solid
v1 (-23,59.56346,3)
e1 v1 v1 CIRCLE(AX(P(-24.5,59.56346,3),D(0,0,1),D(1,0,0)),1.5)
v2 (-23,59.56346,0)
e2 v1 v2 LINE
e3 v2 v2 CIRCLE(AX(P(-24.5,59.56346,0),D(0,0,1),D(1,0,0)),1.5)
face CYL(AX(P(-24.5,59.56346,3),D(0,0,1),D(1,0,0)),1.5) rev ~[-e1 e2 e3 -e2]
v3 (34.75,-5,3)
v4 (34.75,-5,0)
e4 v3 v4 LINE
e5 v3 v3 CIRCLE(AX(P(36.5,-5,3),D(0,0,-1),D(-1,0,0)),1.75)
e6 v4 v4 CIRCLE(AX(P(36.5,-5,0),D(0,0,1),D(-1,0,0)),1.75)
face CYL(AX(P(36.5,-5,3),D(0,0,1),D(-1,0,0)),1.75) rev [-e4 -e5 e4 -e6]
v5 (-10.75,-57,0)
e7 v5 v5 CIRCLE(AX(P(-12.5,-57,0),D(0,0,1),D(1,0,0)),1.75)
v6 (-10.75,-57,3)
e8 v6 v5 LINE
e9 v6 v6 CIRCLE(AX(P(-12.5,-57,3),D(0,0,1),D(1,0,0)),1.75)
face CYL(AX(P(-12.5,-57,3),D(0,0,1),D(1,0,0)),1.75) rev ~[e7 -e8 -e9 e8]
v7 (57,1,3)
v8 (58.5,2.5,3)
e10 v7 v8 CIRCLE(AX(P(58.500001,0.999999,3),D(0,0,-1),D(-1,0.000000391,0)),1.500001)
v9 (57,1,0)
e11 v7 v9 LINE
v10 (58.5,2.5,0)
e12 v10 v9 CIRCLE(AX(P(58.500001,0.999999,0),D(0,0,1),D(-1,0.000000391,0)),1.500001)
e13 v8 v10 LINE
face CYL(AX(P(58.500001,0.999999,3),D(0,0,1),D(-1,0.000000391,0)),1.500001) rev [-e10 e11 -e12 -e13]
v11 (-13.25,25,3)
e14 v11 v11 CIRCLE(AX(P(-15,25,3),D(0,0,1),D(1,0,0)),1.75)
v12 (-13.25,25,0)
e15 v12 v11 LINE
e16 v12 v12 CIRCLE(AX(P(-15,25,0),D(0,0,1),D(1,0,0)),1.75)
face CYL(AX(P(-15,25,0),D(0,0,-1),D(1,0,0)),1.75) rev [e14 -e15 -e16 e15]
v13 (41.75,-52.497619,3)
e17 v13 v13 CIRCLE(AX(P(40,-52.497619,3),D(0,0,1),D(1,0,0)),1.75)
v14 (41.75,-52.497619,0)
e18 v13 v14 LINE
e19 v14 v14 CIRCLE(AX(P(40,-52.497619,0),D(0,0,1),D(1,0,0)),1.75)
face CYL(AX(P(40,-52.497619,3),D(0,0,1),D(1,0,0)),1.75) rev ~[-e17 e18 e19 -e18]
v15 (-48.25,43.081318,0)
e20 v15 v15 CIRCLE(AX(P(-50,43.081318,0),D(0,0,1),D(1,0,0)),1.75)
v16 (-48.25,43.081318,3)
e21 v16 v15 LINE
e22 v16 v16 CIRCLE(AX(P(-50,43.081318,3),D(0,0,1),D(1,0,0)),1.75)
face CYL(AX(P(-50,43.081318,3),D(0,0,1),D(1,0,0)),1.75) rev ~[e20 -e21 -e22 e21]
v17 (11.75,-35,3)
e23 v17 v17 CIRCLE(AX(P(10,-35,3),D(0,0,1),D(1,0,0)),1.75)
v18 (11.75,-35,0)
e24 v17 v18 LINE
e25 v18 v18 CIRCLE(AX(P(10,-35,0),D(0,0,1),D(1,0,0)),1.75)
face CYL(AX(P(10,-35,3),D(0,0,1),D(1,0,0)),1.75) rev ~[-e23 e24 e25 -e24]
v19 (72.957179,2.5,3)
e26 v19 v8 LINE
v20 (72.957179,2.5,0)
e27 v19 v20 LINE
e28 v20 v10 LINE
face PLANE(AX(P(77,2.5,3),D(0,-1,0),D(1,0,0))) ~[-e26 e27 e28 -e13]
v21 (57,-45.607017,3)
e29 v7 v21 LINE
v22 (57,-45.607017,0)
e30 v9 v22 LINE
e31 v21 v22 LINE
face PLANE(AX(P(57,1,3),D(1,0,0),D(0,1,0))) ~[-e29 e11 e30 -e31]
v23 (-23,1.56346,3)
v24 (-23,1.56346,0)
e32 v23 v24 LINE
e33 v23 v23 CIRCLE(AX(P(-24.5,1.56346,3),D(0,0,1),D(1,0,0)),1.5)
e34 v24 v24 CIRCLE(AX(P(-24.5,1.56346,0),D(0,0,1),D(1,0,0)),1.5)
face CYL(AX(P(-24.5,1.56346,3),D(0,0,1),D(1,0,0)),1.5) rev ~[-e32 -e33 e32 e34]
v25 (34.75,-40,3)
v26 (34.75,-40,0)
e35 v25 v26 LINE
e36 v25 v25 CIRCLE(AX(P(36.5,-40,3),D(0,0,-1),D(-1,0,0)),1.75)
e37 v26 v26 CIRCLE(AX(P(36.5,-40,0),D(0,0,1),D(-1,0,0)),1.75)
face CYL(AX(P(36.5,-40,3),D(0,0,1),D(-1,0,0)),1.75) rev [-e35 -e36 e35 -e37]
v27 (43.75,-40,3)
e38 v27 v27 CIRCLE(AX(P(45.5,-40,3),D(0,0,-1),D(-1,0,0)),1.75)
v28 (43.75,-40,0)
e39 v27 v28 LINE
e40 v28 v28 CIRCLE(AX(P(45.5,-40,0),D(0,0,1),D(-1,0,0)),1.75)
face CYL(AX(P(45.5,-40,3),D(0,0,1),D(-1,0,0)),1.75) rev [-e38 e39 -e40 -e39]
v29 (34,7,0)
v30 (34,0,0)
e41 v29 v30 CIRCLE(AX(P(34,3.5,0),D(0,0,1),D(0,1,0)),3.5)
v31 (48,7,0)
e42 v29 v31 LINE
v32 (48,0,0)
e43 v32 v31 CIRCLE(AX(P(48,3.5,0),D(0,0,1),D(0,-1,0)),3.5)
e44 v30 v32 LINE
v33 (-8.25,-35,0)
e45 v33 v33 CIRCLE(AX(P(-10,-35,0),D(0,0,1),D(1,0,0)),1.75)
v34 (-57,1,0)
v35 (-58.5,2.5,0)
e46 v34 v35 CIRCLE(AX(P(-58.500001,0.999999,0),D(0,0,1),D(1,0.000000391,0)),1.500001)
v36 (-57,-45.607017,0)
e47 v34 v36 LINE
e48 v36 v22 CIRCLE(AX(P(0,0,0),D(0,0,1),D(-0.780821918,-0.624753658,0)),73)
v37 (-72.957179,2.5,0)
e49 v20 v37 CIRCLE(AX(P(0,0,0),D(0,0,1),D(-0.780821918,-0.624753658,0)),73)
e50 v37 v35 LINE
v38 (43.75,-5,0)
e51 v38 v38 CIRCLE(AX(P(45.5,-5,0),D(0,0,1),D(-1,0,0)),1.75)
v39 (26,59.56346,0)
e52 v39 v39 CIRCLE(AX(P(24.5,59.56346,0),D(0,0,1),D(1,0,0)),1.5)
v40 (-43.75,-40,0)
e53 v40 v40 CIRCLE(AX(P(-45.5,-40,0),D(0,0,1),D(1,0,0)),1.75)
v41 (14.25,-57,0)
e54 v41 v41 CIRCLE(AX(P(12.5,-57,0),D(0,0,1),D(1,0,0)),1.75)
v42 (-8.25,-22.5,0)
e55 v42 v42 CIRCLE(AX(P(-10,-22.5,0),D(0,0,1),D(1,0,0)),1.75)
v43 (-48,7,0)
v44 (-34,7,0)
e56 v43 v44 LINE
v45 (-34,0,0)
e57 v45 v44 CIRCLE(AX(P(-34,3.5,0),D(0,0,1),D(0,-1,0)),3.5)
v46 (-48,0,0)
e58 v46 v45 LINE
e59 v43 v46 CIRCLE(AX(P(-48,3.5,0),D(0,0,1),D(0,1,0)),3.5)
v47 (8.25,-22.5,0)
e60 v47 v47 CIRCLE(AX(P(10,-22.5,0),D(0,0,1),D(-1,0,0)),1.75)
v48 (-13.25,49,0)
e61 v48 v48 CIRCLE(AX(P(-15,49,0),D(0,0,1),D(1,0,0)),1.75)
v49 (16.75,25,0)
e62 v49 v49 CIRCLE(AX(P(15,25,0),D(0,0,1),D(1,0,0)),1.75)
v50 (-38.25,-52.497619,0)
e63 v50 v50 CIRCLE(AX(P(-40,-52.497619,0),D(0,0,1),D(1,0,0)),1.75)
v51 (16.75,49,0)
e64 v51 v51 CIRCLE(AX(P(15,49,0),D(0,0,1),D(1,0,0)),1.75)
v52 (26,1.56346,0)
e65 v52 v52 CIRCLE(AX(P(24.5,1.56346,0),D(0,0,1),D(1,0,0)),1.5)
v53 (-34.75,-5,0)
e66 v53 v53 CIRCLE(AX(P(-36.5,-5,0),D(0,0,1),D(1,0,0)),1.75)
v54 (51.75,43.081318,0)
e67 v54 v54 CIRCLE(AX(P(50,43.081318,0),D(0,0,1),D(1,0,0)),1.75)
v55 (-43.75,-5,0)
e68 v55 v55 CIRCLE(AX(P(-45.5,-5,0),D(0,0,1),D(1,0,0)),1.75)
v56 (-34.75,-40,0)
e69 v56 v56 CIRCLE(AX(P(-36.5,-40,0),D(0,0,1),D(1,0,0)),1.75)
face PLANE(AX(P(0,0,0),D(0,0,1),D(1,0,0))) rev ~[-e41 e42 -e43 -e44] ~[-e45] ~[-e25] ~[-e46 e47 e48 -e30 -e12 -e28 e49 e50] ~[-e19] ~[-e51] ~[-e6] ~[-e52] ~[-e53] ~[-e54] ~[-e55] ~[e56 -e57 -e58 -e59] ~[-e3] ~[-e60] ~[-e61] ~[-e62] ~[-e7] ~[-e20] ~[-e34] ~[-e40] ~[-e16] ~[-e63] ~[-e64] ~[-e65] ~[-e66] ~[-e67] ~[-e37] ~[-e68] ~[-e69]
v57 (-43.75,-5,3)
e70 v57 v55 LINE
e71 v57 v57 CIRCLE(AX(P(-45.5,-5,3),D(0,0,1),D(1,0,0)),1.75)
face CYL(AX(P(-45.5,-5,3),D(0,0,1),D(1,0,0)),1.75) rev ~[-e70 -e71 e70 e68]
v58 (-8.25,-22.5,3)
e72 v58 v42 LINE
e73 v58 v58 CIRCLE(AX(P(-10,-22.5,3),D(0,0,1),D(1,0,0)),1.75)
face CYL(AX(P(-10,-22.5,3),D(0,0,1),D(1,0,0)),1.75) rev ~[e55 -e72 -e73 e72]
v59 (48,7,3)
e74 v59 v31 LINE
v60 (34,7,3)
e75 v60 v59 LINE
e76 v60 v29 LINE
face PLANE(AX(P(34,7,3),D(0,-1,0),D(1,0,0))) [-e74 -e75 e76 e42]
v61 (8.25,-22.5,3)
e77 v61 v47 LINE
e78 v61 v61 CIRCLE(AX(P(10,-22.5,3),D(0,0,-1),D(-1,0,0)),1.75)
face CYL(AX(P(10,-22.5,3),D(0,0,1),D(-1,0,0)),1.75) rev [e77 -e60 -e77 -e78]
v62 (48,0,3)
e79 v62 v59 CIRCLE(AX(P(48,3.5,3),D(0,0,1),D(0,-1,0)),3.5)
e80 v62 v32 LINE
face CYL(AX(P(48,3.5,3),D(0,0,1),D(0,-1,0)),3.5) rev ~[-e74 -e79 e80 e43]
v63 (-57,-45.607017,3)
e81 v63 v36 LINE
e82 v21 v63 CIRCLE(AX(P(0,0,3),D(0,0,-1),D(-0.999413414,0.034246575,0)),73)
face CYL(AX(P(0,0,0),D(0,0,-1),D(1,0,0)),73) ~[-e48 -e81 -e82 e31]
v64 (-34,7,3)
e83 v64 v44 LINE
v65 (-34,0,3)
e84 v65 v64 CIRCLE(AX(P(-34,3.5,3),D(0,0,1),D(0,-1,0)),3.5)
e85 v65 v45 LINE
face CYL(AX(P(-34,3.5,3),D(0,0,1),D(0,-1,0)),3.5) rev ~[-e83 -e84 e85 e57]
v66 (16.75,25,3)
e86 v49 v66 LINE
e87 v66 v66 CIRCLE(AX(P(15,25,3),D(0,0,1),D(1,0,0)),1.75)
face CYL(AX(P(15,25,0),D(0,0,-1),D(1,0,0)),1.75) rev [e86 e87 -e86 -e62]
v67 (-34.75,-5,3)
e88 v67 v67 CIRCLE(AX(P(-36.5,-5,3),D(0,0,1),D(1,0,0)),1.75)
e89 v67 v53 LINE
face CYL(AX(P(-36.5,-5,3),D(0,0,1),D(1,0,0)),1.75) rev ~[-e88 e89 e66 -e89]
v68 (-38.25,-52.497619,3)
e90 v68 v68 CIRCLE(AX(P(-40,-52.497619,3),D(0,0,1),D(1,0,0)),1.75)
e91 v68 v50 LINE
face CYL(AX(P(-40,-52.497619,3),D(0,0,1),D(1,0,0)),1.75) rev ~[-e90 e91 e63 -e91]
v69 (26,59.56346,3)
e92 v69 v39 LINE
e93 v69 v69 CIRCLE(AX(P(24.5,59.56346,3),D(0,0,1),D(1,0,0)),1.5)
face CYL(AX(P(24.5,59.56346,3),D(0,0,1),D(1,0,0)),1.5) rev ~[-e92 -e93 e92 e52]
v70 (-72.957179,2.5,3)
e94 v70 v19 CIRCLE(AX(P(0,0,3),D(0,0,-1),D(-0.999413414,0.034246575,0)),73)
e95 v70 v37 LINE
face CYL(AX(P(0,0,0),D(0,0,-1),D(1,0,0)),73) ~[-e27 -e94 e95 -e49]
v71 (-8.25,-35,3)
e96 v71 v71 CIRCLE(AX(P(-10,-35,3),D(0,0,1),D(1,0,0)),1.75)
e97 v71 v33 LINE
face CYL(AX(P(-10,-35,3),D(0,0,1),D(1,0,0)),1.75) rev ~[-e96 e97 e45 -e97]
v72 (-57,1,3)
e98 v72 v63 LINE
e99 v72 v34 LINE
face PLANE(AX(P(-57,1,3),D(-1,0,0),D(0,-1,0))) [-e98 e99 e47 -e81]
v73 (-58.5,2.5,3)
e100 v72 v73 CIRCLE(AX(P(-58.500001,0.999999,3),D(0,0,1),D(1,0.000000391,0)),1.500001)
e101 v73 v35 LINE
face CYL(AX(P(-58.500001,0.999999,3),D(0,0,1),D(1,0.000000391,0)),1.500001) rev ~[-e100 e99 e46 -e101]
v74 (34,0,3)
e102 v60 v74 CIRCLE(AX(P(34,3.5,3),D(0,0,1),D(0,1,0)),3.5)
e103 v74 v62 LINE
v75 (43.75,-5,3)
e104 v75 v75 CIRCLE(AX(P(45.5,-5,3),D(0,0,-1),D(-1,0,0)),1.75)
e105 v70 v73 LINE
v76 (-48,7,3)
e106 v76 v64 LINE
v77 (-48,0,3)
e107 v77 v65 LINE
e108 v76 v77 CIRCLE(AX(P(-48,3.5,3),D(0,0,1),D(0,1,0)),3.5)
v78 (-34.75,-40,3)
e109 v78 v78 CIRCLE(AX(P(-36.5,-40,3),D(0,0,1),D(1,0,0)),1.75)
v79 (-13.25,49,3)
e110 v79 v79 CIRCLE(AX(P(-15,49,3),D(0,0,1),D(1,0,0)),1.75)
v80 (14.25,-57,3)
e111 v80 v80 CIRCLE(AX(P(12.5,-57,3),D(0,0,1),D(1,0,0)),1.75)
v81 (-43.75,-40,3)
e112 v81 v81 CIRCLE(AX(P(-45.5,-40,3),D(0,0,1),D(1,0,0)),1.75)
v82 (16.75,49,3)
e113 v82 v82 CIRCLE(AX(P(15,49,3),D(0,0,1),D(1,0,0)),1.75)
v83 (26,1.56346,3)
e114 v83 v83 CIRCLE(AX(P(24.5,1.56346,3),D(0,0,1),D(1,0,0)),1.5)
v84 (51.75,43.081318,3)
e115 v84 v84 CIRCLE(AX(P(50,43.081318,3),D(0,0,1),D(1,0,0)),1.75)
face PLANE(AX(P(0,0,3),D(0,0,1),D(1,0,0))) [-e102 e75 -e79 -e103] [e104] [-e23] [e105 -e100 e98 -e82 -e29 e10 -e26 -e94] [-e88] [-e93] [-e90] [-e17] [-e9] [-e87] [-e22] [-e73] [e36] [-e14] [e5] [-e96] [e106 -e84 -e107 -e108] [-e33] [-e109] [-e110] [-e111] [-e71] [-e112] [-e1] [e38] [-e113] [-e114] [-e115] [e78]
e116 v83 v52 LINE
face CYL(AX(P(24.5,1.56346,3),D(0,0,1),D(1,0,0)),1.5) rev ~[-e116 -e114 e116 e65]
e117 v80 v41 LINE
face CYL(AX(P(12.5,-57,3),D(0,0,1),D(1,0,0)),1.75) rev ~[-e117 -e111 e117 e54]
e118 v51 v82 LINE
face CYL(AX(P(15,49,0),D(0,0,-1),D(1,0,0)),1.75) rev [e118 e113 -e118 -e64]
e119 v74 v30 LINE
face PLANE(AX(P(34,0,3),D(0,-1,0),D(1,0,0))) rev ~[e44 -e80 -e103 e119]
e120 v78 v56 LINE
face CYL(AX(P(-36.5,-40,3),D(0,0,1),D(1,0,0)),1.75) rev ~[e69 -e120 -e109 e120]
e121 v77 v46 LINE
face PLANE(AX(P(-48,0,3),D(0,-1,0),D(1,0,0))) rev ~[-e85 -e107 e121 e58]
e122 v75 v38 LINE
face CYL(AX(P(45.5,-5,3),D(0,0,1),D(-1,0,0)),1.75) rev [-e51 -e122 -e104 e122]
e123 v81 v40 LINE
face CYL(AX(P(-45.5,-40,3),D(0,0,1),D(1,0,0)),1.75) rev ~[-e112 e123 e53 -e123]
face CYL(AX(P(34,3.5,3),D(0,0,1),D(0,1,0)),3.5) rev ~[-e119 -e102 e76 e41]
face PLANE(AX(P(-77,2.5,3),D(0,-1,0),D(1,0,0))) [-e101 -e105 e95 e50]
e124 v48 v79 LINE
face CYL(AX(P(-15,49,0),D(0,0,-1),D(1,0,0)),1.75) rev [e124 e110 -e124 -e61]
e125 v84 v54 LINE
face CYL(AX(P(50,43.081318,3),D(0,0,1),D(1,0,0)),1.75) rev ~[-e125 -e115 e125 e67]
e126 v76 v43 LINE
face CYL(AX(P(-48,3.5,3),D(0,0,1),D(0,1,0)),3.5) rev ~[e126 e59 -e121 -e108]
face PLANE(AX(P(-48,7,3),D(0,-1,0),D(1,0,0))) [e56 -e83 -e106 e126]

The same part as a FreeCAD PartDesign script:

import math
import FreeCAD as App
import Part
import Sketcher

doc = App.newDocument("Part")
body = doc.addObject("PartDesign::Body", "Body")

sketch1 = body.newObject("Sketcher::SketchObject", "Sketch")
sketch1.AttachmentSupport = (doc.getObject("XY_Plane"), [""])
sketch1.MapMode = "FlatFace"
sketch1.addGeometry([
    Part.Circle(App.Vector(0, 0, 0), App.Vector(0, 0, 1), 73),
    Part.Circle(App.Vector(-15, 25, 0), App.Vector(0, 0, 1), 1.8),
    Part.Circle(App.Vector(15, 25, 0), App.Vector(0, 0, 1), 1.8),
    Part.Circle(App.Vector(-15, 49, 0), App.Vector(0, 0, 1), 1.8),
    Part.Circle(App.Vector(15, 49, 0), App.Vector(0, 0, 1), 1.8),
], False)
sketch1.addConstraint([
    Sketcher.Constraint("Coincident", 0, 3, -1, 1),
    Sketcher.Constraint("Equal", 1, 2),
    Sketcher.Constraint("Equal", 2, 3),
    Sketcher.Constraint("Equal", 3, 4),
    Sketcher.Constraint("Symmetric", 1, 3, 2, 3, -2),
    Sketcher.Constraint("Symmetric", 3, 3, 4, 3, -2),
    Sketcher.Constraint("Vertical", 1, 3, 3, 3),
    Sketcher.Constraint("Diameter", 0, 146.0),
    Sketcher.Constraint("Diameter", 1, 3.5),
    Sketcher.Constraint("DistanceX", 1, 3, -1, 1, 15.0),
    Sketcher.Constraint("DistanceY", -1, 1, 1, 3, 25.0),
    Sketcher.Constraint("DistanceY", -1, 1, 3, 3, 49.0),
])
pad1 = body.newObject("PartDesign::Pad", "Pad")
pad1.Profile = sketch1
pad1.Length = 3

sketch2 = body.newObject("Sketcher::SketchObject", "Sketch001")
sketch2.AttachmentSupport = (doc.getObject("XY_Plane"), [""])
sketch2.MapMode = "FlatFace"
sketch2.AttachmentOffset = App.Placement(App.Vector(0, 0, 3), App.Rotation())
sketch2.addGeometry([
    Part.Circle(App.Vector(-45.5, -5, 0), App.Vector(0, 0, 1), 1.8),
    Part.Circle(App.Vector(-36.5, -5, 0), App.Vector(0, 0, 1), 1.8),
    Part.Circle(App.Vector(-45.5, -40, 0), App.Vector(0, 0, 1), 1.8),
    Part.Circle(App.Vector(-36.5, -40, 0), App.Vector(0, 0, 1), 1.8),
    Part.Circle(App.Vector(-10, -22.5, 0), App.Vector(0, 0, 1), 1.8),
    Part.LineSegment(App.Vector(-58.5, 2.5, 0), App.Vector(-77, 2.5, 0)),
    Part.LineSegment(App.Vector(-77, 2.5, 0), App.Vector(-77, -47.5, 0)),
    Part.LineSegment(App.Vector(-77, -47.5, 0), App.Vector(-57, -47.5, 0)),
    Part.LineSegment(App.Vector(-57, -47.5, 0), App.Vector(-57, 1, 0)),
    Part.ArcOfCircle(Part.Circle(App.Vector(-58.5, 1, 0), App.Vector(0, 0, 1), 1.5), math.radians(0), math.radians(90)),
], False)
sketch2.addConstraint([
    Sketcher.Constraint("Coincident", 5, 2, 6, 1),
    Sketcher.Constraint("Coincident", 6, 2, 7, 1),
    Sketcher.Constraint("Coincident", 7, 2, 8, 1),
    Sketcher.Constraint("Tangent", 8, 2, 9, 1),
    Sketcher.Constraint("Tangent", 9, 2, 5, 1),
    Sketcher.Constraint("Horizontal", 5),
    Sketcher.Constraint("Vertical", 6),
    Sketcher.Constraint("Horizontal", 7),
    Sketcher.Constraint("Vertical", 8),
    Sketcher.Constraint("Equal", 0, 1),
    Sketcher.Constraint("Equal", 1, 2),
    Sketcher.Constraint("Equal", 2, 3),
    Sketcher.Constraint("Equal", 3, 4),
    Sketcher.Constraint("Horizontal", 0, 3, 1, 3),
    Sketcher.Constraint("Horizontal", 2, 3, 3, 3),
    Sketcher.Constraint("Vertical", 0, 3, 2, 3),
    Sketcher.Constraint("Vertical", 1, 3, 3, 3),
    Sketcher.Constraint("Diameter", 0, 3.5),
    Sketcher.Constraint("Radius", 9, 1.500001),
    Sketcher.Constraint("DistanceX", 7, 1, 7, 2, 20.0),
    Sketcher.Constraint("DistanceY", 6, 2, 6, 1, 50.0),
    Sketcher.Constraint("DistanceY", 0, 3, -1, 1, 5.0),
    Sketcher.Constraint("DistanceY", 2, 3, -1, 1, 40.0),
    Sketcher.Constraint("DistanceX", 4, 3, -1, 1, 10.0),
    Sketcher.Constraint("DistanceY", -1, 1, 9, 3, 0.999999),
    Sketcher.Constraint("DistanceX", 5, 2, -1, 1, 77.0),
    Sketcher.Constraint("DistanceX", 0, 3, 1, 3, 9.0),
    Sketcher.Constraint("DistanceX", 9, 3, 0, 3, 13.000001),
    Sketcher.Constraint("DistanceY", 4, 3, -1, 1, 22.5),
])
pocket1 = body.newObject("PartDesign::Pocket", "Pocket")
pocket1.Profile = sketch2
pocket1.Type = "ThroughAll"
doc.recompute()

mirrored = body.newObject("PartDesign::Mirrored", "Mirrored")
mirrored.Originals = [pocket1]
mirrored.MirrorPlane = (doc.getObject("YZ_Plane"), [""])
body.Tip = mirrored

sketch3 = body.newObject("Sketcher::SketchObject", "Sketch002")
sketch3.AttachmentSupport = (doc.getObject("XY_Plane"), [""])
sketch3.MapMode = "FlatFace"
sketch3.AttachmentOffset = App.Placement(App.Vector(0, 0, 3), App.Rotation())
sketch3.addGeometry([
    Part.Circle(App.Vector(-40, -52.5, 0), App.Vector(0, 0, 1), 1.8),
    Part.Circle(App.Vector(40, -52.5, 0), App.Vector(0, 0, 1), 1.8),
    Part.Circle(App.Vector(-50, 43.1, 0), App.Vector(0, 0, 1), 1.8),
    Part.Circle(App.Vector(50, 43.1, 0), App.Vector(0, 0, 1), 1.8),
], False)
sketch3.addConstraint([
    Sketcher.Constraint("Equal", 0, 1),
    Sketcher.Constraint("Equal", 1, 2),
    Sketcher.Constraint("Equal", 2, 3),
    Sketcher.Constraint("Symmetric", 0, 3, 1, 3, -2),
    Sketcher.Constraint("Symmetric", 2, 3, 3, 3, -2),
    Sketcher.Constraint("Diameter", 0, 3.5),
    Sketcher.Constraint("DistanceX", 0, 3, -1, 1, 40.0),
    Sketcher.Constraint("DistanceX", 2, 3, -1, 1, 50.0),
    Sketcher.Constraint("DistanceY", 0, 3, -1, 1, 52.497619),
    Sketcher.Constraint("DistanceY", -1, 1, 2, 3, 43.081318),
])
pocket2 = body.newObject("PartDesign::Pocket", "Pocket001")
pocket2.Profile = sketch3
pocket2.Type = "ThroughAll"

sketch4 = body.newObject("Sketcher::SketchObject", "Sketch003")
sketch4.AttachmentSupport = (doc.getObject("XY_Plane"), [""])
sketch4.MapMode = "FlatFace"
sketch4.AttachmentOffset = App.Placement(App.Vector(0, 0, 3), App.Rotation())
sketch4.addGeometry([
    Part.ArcOfCircle(Part.Circle(App.Vector(-48, 3.5, 0), App.Vector(0, 0, 1), 3.5), math.radians(90), math.radians(270)),
    Part.LineSegment(App.Vector(-48, 0, 0), App.Vector(-34, 0, 0)),
    Part.ArcOfCircle(Part.Circle(App.Vector(-34, 3.5, 0), App.Vector(0, 0, 1), 3.5), math.radians(-90), math.radians(90)),
    Part.LineSegment(App.Vector(-34, 7, 0), App.Vector(-48, 7, 0)),
    Part.ArcOfCircle(Part.Circle(App.Vector(34, 3.5, 0), App.Vector(0, 0, 1), 3.5), math.radians(90), math.radians(270)),
    Part.LineSegment(App.Vector(34, 0, 0), App.Vector(48, 0, 0)),
    Part.ArcOfCircle(Part.Circle(App.Vector(48, 3.5, 0), App.Vector(0, 0, 1), 3.5), math.radians(-90), math.radians(90)),
    Part.LineSegment(App.Vector(48, 7, 0), App.Vector(34, 7, 0)),
], False)
sketch4.addConstraint([
    Sketcher.Constraint("Tangent", 0, 2, 1, 1),
    Sketcher.Constraint("Tangent", 1, 2, 2, 1),
    Sketcher.Constraint("Tangent", 2, 2, 3, 1),
    Sketcher.Constraint("Tangent", 3, 2, 0, 1),
    Sketcher.Constraint("Tangent", 4, 2, 5, 1),
    Sketcher.Constraint("Tangent", 5, 2, 6, 1),
    Sketcher.Constraint("Tangent", 6, 2, 7, 1),
    Sketcher.Constraint("Tangent", 7, 2, 4, 1),
    Sketcher.Constraint("Horizontal", 1),
    Sketcher.Constraint("Horizontal", 3),
    Sketcher.Constraint("Horizontal", 5),
    Sketcher.Constraint("Horizontal", 7),
    Sketcher.Constraint("Equal", 2, 4),
    Sketcher.Constraint("Symmetric", 1, 2, 4, 2, -1, 1),
    Sketcher.Constraint("Symmetric", 0, 3, 6, 3, -2),
    Sketcher.Constraint("Radius", 0, 3.5),
    Sketcher.Constraint("DistanceX", 1, 1, 1, 2, 14.0),
    Sketcher.Constraint("DistanceX", 0, 3, -1, 1, 48.0),
])
pocket3 = body.newObject("PartDesign::Pocket", "Pocket002")
pocket3.Profile = sketch4
pocket3.Type = "ThroughAll"

sketch5 = body.newObject("Sketcher::SketchObject", "Sketch004")
sketch5.AttachmentSupport = (doc.getObject("XY_Plane"), [""])
sketch5.MapMode = "FlatFace"
sketch5.AttachmentOffset = App.Placement(App.Vector(0, 0, 3), App.Rotation())
sketch5.addGeometry([
    Part.Circle(App.Vector(-12.5, -57, 0), App.Vector(0, 0, 1), 1.8),
    Part.Circle(App.Vector(12.5, -57, 0), App.Vector(0, 0, 1), 1.8),
    Part.Circle(App.Vector(-24.5, 59.6, 0), App.Vector(0, 0, 1), 1.5),
    Part.Circle(App.Vector(24.5, 59.6, 0), App.Vector(0, 0, 1), 1.5),
    Part.Circle(App.Vector(-24.5, 1.6, 0), App.Vector(0, 0, 1), 1.5),
    Part.Circle(App.Vector(24.5, 1.6, 0), App.Vector(0, 0, 1), 1.5),
    Part.Circle(App.Vector(-10, -35, 0), App.Vector(0, 0, 1), 1.8),
    Part.Circle(App.Vector(10, -35, 0), App.Vector(0, 0, 1), 1.8),
], False)
sketch5.addConstraint([
    Sketcher.Constraint("Equal", 0, 1),
    Sketcher.Constraint("Equal", 2, 3),
    Sketcher.Constraint("Equal", 3, 4),
    Sketcher.Constraint("Equal", 4, 5),
    Sketcher.Constraint("Equal", 1, 6),
    Sketcher.Constraint("Equal", 6, 7),
    Sketcher.Constraint("Symmetric", 0, 3, 1, 3, -2),
    Sketcher.Constraint("Symmetric", 2, 3, 3, 3, -2),
    Sketcher.Constraint("Symmetric", 4, 3, 5, 3, -2),
    Sketcher.Constraint("Symmetric", 6, 3, 7, 3, -2),
    Sketcher.Constraint("Vertical", 2, 3, 4, 3),
    Sketcher.Constraint("Diameter", 2, 3.0),
    Sketcher.Constraint("Diameter", 0, 3.5),
    Sketcher.Constraint("DistanceY", 0, 3, -1, 1, 57.0),
    Sketcher.Constraint("DistanceX", 6, 3, -1, 1, 10.0),
    Sketcher.Constraint("DistanceY", 6, 3, -1, 1, 35.0),
    Sketcher.Constraint("DistanceX", 0, 3, 1, 3, 25.0),
    Sketcher.Constraint("DistanceX", 2, 3, 0, 3, 12.0),
    Sketcher.Constraint("DistanceY", 4, 3, 2, 3, 58.0),
    Sketcher.Constraint("DistanceY", -1, 1, 2, 3, 59.56346),
])
pocket4 = body.newObject("PartDesign::Pocket", "Pocket003")
pocket4.Profile = sketch5
pocket4.Type = "ThroughAll"

doc.recompute()
